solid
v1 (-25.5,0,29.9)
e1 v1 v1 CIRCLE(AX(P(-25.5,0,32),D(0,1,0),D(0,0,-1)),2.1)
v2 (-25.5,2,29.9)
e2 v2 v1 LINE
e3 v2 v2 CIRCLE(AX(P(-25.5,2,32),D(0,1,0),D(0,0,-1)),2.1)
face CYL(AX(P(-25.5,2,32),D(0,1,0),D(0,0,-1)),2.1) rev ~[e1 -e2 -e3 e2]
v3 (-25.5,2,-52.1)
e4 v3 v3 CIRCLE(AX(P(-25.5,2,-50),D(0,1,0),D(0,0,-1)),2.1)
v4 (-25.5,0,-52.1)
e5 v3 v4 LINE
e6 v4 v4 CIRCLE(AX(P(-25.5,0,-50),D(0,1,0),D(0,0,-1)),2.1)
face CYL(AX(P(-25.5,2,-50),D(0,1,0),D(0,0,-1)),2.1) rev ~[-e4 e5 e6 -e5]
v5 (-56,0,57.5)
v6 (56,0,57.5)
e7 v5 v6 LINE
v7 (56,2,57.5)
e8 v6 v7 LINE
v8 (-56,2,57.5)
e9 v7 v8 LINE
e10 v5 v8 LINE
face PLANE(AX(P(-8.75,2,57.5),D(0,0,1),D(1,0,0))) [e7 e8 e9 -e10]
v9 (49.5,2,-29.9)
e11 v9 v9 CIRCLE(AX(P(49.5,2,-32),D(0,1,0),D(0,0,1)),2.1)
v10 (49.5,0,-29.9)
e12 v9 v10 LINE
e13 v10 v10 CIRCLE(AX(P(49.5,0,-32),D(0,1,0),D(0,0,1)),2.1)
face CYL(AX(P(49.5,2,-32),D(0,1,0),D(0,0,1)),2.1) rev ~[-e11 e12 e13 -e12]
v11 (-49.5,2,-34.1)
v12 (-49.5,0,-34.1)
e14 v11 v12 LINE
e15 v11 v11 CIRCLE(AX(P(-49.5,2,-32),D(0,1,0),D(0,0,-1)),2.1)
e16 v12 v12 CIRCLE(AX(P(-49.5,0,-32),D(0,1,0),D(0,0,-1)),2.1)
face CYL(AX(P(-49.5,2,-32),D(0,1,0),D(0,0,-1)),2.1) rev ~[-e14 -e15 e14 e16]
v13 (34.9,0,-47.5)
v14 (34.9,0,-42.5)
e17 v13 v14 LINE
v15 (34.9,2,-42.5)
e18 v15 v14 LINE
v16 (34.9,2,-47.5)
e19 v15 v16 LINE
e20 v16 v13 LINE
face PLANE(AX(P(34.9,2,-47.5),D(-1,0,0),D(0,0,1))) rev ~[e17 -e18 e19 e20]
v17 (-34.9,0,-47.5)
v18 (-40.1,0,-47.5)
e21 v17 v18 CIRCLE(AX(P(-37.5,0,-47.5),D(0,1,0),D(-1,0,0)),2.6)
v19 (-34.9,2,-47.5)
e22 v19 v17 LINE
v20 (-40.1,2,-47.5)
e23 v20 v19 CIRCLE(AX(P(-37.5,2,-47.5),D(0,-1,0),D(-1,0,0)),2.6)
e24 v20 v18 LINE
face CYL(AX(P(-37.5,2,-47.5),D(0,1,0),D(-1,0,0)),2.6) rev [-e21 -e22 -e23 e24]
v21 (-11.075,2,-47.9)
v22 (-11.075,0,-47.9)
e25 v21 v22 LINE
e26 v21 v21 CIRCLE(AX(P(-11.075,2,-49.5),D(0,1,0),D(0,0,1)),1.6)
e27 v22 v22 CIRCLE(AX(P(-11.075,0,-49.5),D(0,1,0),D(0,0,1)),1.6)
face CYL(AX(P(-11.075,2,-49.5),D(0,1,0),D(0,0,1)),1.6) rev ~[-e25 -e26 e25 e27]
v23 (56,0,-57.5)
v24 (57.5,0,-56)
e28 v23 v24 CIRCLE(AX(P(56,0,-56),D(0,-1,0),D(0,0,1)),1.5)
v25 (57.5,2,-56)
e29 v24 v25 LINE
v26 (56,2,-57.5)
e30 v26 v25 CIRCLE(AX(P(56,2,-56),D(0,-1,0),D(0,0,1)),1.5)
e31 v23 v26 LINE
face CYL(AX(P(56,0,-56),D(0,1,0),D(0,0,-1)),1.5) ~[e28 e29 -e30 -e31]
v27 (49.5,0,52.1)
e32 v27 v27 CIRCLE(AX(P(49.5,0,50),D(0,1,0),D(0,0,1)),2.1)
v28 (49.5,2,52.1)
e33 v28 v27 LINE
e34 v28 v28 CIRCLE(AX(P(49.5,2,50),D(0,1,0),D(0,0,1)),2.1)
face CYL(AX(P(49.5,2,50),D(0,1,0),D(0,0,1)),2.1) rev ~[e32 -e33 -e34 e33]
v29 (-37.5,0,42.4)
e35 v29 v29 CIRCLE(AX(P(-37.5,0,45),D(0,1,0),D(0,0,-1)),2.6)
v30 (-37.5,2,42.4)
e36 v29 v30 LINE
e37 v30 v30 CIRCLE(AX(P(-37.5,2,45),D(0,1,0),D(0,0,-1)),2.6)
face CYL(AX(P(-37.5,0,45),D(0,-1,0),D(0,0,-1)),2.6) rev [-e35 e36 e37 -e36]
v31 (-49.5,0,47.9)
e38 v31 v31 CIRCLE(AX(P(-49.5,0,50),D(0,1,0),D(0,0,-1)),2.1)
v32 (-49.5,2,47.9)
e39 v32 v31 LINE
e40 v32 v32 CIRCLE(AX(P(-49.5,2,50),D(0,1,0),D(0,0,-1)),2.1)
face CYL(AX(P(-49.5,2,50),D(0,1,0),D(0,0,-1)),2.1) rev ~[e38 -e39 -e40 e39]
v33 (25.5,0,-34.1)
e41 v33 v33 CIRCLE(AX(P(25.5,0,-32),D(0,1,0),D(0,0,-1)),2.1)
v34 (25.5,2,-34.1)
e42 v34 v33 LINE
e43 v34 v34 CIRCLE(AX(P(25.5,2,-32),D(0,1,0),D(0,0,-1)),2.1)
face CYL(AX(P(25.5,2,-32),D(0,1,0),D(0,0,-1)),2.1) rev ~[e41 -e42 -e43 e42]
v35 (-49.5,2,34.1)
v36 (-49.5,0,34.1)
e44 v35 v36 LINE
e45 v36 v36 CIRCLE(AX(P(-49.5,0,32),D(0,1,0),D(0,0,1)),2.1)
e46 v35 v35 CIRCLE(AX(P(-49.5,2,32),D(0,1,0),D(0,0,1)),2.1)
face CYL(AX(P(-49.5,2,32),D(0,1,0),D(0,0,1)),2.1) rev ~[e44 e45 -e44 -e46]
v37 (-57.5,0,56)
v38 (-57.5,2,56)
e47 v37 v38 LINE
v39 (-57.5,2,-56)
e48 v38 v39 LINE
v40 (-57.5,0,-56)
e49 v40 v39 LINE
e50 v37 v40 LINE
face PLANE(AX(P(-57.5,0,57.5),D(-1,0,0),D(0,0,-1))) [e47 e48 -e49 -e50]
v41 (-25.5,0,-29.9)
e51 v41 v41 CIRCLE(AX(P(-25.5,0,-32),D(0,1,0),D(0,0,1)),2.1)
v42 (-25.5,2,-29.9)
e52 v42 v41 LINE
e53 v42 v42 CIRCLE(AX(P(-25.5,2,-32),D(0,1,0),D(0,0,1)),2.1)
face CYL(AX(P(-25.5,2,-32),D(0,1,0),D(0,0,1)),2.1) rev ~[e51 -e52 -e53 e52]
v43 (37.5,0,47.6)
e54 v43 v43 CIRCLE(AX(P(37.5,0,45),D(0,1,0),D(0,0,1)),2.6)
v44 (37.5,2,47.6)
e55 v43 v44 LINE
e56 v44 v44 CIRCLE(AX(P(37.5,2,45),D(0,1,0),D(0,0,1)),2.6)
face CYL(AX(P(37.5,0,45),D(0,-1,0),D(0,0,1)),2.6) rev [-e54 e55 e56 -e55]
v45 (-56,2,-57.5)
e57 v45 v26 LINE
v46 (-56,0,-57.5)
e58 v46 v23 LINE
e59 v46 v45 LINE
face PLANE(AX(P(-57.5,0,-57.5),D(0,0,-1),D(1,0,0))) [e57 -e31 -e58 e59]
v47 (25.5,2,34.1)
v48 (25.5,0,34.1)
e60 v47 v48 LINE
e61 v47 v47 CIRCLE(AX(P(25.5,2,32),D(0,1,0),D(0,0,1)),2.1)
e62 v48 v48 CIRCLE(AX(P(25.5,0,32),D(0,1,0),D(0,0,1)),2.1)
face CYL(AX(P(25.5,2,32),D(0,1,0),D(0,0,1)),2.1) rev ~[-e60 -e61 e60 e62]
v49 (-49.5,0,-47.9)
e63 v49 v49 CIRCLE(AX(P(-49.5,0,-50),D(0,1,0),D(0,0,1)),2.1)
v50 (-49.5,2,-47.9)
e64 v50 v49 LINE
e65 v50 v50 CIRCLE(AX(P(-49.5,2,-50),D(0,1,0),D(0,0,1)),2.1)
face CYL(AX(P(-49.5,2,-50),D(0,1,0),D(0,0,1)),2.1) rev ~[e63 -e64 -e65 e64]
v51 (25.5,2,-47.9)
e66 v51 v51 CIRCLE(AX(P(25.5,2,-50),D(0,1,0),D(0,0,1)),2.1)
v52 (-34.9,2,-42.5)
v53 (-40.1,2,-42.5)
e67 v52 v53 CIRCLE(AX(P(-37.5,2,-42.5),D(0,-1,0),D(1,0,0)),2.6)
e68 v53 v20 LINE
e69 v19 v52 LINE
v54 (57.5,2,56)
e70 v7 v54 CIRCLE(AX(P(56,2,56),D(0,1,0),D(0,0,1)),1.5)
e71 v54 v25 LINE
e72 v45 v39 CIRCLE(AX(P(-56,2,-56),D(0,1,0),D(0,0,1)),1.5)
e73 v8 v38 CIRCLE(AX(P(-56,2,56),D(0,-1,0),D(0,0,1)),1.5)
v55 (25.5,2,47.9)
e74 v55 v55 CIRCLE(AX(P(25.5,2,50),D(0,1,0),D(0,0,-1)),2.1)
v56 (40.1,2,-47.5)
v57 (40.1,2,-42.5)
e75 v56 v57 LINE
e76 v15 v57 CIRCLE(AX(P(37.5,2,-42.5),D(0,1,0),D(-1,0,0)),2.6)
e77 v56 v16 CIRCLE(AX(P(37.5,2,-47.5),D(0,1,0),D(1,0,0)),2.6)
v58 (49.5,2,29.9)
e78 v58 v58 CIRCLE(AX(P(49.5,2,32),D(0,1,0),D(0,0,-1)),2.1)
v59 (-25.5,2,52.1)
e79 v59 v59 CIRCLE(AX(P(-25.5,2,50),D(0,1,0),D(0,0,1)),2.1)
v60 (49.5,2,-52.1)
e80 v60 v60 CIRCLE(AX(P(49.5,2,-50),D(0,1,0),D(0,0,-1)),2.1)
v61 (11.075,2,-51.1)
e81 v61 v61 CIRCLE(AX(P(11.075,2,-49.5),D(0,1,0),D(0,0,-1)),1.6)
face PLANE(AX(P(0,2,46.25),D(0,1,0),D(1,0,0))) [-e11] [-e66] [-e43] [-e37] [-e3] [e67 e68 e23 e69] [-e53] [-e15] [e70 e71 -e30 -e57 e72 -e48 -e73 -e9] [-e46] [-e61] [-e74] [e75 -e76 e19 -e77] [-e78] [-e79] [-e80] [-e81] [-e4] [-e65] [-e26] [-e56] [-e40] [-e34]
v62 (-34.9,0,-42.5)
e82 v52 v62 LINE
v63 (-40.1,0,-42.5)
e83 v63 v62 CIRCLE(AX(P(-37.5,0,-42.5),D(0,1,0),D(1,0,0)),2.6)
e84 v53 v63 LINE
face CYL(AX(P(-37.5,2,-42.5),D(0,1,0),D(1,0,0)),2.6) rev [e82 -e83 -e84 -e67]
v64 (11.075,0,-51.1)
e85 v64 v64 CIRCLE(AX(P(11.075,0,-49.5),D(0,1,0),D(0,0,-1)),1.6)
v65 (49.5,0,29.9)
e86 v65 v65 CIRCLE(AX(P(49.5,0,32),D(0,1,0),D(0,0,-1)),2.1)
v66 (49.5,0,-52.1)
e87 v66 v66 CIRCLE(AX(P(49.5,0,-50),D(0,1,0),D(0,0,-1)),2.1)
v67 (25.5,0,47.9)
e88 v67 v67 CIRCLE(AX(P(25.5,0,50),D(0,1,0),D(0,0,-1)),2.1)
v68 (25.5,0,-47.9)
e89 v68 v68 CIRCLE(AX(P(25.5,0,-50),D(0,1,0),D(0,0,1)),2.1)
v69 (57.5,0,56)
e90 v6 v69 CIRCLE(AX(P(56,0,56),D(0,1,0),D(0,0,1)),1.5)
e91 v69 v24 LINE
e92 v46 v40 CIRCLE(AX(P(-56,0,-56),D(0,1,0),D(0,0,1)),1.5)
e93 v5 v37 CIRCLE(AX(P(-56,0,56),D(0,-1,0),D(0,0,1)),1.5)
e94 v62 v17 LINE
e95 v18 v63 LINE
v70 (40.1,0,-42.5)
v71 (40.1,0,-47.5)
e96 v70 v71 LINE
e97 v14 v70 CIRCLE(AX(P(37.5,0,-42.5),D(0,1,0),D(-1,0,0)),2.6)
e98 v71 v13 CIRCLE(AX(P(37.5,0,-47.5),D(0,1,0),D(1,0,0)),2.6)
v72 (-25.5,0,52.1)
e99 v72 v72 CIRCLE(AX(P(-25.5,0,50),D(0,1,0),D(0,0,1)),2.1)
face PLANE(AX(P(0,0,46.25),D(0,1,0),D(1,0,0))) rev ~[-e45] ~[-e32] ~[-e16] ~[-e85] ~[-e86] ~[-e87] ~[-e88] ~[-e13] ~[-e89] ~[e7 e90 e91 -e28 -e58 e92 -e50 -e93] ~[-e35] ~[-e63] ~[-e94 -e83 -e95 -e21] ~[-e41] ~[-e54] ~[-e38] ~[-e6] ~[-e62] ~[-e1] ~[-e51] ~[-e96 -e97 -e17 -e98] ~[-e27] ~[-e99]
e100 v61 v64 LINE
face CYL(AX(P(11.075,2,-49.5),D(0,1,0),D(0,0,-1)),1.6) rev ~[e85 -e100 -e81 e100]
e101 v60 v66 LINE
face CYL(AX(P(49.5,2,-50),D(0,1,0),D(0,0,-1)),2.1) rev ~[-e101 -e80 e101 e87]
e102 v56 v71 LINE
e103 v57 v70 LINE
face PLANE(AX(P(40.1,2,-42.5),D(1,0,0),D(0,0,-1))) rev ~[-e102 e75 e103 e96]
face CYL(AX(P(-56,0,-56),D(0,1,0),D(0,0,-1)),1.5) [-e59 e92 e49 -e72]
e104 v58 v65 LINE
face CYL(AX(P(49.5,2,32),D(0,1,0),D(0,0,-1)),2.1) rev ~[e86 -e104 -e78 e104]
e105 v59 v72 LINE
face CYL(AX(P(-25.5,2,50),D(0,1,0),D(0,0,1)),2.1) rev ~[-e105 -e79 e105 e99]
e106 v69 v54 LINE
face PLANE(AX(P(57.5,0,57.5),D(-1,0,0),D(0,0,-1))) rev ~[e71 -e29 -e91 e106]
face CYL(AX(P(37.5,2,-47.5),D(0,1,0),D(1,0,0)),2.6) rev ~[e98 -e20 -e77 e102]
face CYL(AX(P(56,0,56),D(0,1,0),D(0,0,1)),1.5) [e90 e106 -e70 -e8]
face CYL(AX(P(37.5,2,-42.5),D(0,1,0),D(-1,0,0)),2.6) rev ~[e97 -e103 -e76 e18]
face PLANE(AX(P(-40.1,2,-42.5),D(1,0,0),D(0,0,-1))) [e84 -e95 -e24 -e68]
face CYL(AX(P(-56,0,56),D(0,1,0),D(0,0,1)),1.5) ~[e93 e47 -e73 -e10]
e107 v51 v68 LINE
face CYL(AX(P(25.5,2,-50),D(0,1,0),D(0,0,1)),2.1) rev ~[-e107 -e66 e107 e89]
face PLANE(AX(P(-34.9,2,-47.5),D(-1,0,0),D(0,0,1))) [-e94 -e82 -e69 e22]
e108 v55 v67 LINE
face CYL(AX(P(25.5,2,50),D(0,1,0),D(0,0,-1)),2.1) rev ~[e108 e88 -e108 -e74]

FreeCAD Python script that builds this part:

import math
import FreeCAD as App
import Part
import Sketcher
Q = App.Units.Quantity


def edges_at(feature, points):
    """Names of the edges that pass closest to the given points."""
    edges = feature.Shape.Edges
    near = lambda p: min(range(len(edges)), key=lambda i: edges[i].distToShape(Part.Vertex(*p))[0])
    return sorted({f"Edge{near(p) + 1}" for p in points})

doc = App.newDocument("Part")
body = doc.addObject("PartDesign::Body", "Body")

sketch1 = body.newObject("Sketcher::SketchObject", "Sketch")
sketch1.AttachmentSupport = (doc.getObject("XZ_Plane"), [""])
sketch1.MapMode = "FlatFace"
sketch1.addGeometry([
    Part.LineSegment(App.Vector(-57.5, -57.5, 0), App.Vector(-57.5, 57.5, 0)),
    Part.LineSegment(App.Vector(-57.5, 57.5, 0), App.Vector(57.5, 57.5, 0)),
    Part.LineSegment(App.Vector(57.5, 57.5, 0), App.Vector(57.5, -57.5, 0)),
    Part.LineSegment(App.Vector(57.5, -57.5, 0), App.Vector(-57.5, -57.5, 0)),
    Part.Circle(App.Vector(-37.5, 45, 0), App.Vector(0, 0, 1), 2.6),
    Part.Circle(App.Vector(37.5, 45, 0), App.Vector(0, 0, 1), 2.6),
    Part.Circle(App.Vector(-37.5, -45, 0), App.Vector(0, 0, 1), 2.6),
    Part.Circle(App.Vector(37.5, -45, 0), App.Vector(0, 0, 1), 2.6),
], False)
sketch1.addConstraint([
    Sketcher.Constraint("Coincident", 0, 2, 1, 1),
    Sketcher.Constraint("Coincident", 1, 2, 2, 1),
    Sketcher.Constraint("Coincident", 2, 2, 3, 1),
    Sketcher.Constraint("Coincident", 3, 2, 0, 1),
    Sketcher.Constraint("Vertical", 0),
    Sketcher.Constraint("Horizontal", 1),
    Sketcher.Constraint("Vertical", 2),
    Sketcher.Constraint("Horizontal", 3),
    Sketcher.Constraint("Equal", 4, 5),
    Sketcher.Constraint("Equal", 5, 6),
    Sketcher.Constraint("Equal", 6, 7),
    Sketcher.Constraint("Symmetric", 5, 3, 6, 3, -1, 1),
    Sketcher.Constraint("Symmetric", 4, 3, 7, 3, -1, 1),
    Sketcher.Constraint("Symmetric", 0, 2, 2, 2, -1, 1),
    Sketcher.Constraint("Symmetric", 4, 3, 5, 3, -2),
    Sketcher.Constraint("Equal", 3, 0),
    Sketcher.Constraint("Diameter", 4, Q("5.2 mm")),
    Sketcher.Constraint("DistanceX", 1, 1, 1, 2, Q("115 mm")),
    Sketcher.Constraint("DistanceY", -1, 1, 4, 3, Q("45 mm")),
    Sketcher.Constraint("DistanceX", 4, 3, 5, 3, Q("75 mm")),
])
pad1 = body.newObject("PartDesign::Pad", "Pad")
pad1.Profile = sketch1
pad1.Length = 2
pad1.Reversed = True

sketch2 = body.newObject("Sketcher::SketchObject", "Sketch001")
sketch2.AttachmentSupport = (doc.getObject("XZ_Plane"), [""])
sketch2.MapMode = "FlatFace"
sketch2.AttachmentOffset = App.Placement(App.Vector(0, 0, -2), App.Rotation())
sketch2.addGeometry([
    Part.Circle(App.Vector(-49.5, 32, 0), App.Vector(0, 0, 1), 2.1),
    Part.Circle(App.Vector(-25.5, 32, 0), App.Vector(0, 0, 1), 2.1),
    Part.Circle(App.Vector(-25.5, 50, 0), App.Vector(0, 0, 1), 2.1),
    Part.Circle(App.Vector(-49.5, 50, 0), App.Vector(0, 0, 1), 2.1),
    Part.Circle(App.Vector(25.5, 50, 0), App.Vector(0, 0, 1), 2.1),
    Part.Circle(App.Vector(49.5, 50, 0), App.Vector(0, 0, 1), 2.1),
    Part.Circle(App.Vector(49.5, 32, 0), App.Vector(0, 0, 1), 2.1),
    Part.Circle(App.Vector(25.5, 32, 0), App.Vector(0, 0, 1), 2.1),
    Part.Circle(App.Vector(49.5, -50, 0), App.Vector(0, 0, 1), 2.1),
    Part.Circle(App.Vector(49.5, -32, 0), App.Vector(0, 0, 1), 2.1),
    Part.Circle(App.Vector(25.5, -50, 0), App.Vector(0, 0, 1), 2.1),
    Part.Circle(App.Vector(25.5, -32, 0), App.Vector(0, 0, 1), 2.1),
    Part.Circle(App.Vector(-25.5, -50, 0), App.Vector(0, 0, 1), 2.1),
    Part.Circle(App.Vector(-49.5, -50, 0), App.Vector(0, 0, 1), 2.1),
    Part.Circle(App.Vector(-49.5, -32, 0), App.Vector(0, 0, 1), 2.1),
    Part.Circle(App.Vector(-25.5, -32, 0), App.Vector(0, 0, 1), 2.1),
], False)
sketch2.addConstraint([
    Sketcher.Constraint("Equal", 0, 1),
    Sketcher.Constraint("Equal", 1, 2),
    Sketcher.Constraint("Equal", 2, 3),
    Sketcher.Constraint("Equal", 3, 4),
    Sketcher.Constraint("Equal", 4, 5),
    Sketcher.Constraint("Equal", 5, 6),
    Sketcher.Constraint("Equal", 6, 7),
    Sketcher.Constraint("Equal", 7, 8),
    Sketcher.Constraint("Equal", 8, 9),
    Sketcher.Constraint("Equal", 9, 10),
    Sketcher.Constraint("Equal", 10, 11),
    Sketcher.Constraint("Equal", 11, 12),
    Sketcher.Constraint("Equal", 12, 13),
    Sketcher.Constraint("Equal", 13, 14),
    Sketcher.Constraint("Equal", 14, 15),
    Sketcher.Constraint("Symmetric", 3, 3, 8, 3, -1, 1),
    Sketcher.Constraint("Symmetric", 0, 3, 9, 3, -1, 1),
    Sketcher.Constraint("Symmetric", 2, 3, 10, 3, -1, 1),
    Sketcher.Constraint("Symmetric", 1, 3, 11, 3, -1, 1),
    Sketcher.Constraint("Symmetric", 4, 3, 12, 3, -1, 1),
    Sketcher.Constraint("Symmetric", 5, 3, 13, 3, -1, 1),
    Sketcher.Constraint("Symmetric", 6, 3, 14, 3, -1, 1),
    Sketcher.Constraint("Symmetric", 7, 3, 15, 3, -1, 1),
    Sketcher.Constraint("Symmetric", 2, 3, 4, 3, -2),
    Sketcher.Constraint("Symmetric", 3, 3, 5, 3, -2),
    Sketcher.Constraint("Symmetric", 0, 3, 6, 3, -2),
    Sketcher.Constraint("Symmetric", 1, 3, 7, 3, -2),
    Sketcher.Constraint("Horizontal", 0, 3, 1, 3),
    Sketcher.Constraint("Horizontal", 2, 3, 3, 3),
    Sketcher.Constraint("Vertical", 1, 3, 2, 3),
    Sketcher.Constraint("Vertical", 0, 3, 3, 3),
    Sketcher.Constraint("Diameter", 0, Q("4.2 mm")),
    Sketcher.Constraint("DistanceY", -1, 1, 0, 3, Q("32 mm")),
    Sketcher.Constraint("DistanceY", -1, 1, 2, 3, Q("50 mm")),
    Sketcher.Constraint("DistanceX", 0, 3, 1, 3, Q("24 mm")),
    Sketcher.Constraint("DistanceX", 2, 3, 4, 3, Q("51 mm")),
])
pocket1 = body.newObject("PartDesign::Pocket", "Pocket")
pocket1.Profile = sketch2
pocket1.Type = "ThroughAll"
pocket1.Reversed = True

sketch3 = body.newObject("Sketcher::SketchObject", "Sketch002")
sketch3.AttachmentSupport = (doc.getObject("XZ_Plane"), [""])
sketch3.MapMode = "FlatFace"
sketch3.AttachmentOffset = App.Placement(App.Vector(0, 0, -2), App.Rotation())
sketch3.addGeometry([
    Part.LineSegment(App.Vector(-8.75, 35, 0), App.Vector(-8.75, 57.5, 0)),
    Part.LineSegment(App.Vector(-8.75, 57.5, 0), App.Vector(8.75, 57.5, 0)),
    Part.LineSegment(App.Vector(8.75, 57.5, 0), App.Vector(8.75, 35, 0)),
    Part.LineSegment(App.Vector(8.75, 35, 0), App.Vector(-8.75, 35, 0)),
], False)
sketch3.addConstraint([
    Sketcher.Constraint("Coincident", 0, 2, 1, 1),
    Sketcher.Constraint("Coincident", 1, 2, 2, 1),
    Sketcher.Constraint("Coincident", 2, 2, 3, 1),
    Sketcher.Constraint("Coincident", 3, 2, 0, 1),
    Sketcher.Constraint("Vertical", 0),
    Sketcher.Constraint("Horizontal", 1),
    Sketcher.Constraint("Vertical", 2),
    Sketcher.Constraint("Horizontal", 3),
    Sketcher.Constraint("DistanceX", 1, 1, 1, 2, Q("17.5 mm")),
    Sketcher.Constraint("DistanceY", 0, 1, 0, 2, Q("22.5 mm")),
    Sketcher.Constraint("DistanceY", -1, 1, 2, 2, Q("35 mm")),
    Sketcher.Constraint("DistanceX", 0, 2, -1, 1, Q("8.75 mm")),
])
pocket2 = body.newObject("PartDesign::Pocket", "Pocket001")
pocket2.Profile = sketch3
pocket2.Type = "ThroughAll"
pocket2.Reversed = True

sketch4 = body.newObject("Sketcher::SketchObject", "Sketch003")
sketch4.AttachmentSupport = (doc.getObject("XZ_Plane"), [""])
sketch4.MapMode = "FlatFace"
sketch4.AttachmentOffset = App.Placement(App.Vector(0, 0, -2), App.Rotation())
sketch4.addGeometry([
    Part.Circle(App.Vector(-11.075, -49.5, 0), App.Vector(0, 0, 1), 1.6),
    Part.Circle(App.Vector(11.075, -49.5, 0), App.Vector(0, 0, 1), 1.6),
], False)
sketch4.addConstraint([
    Sketcher.Constraint("Equal", 0, 1),
    Sketcher.Constraint("Symmetric", 0, 3, 1, 3, -2),
    Sketcher.Constraint("Diameter", 0, Q("3.2 mm")),
    Sketcher.Constraint("DistanceY", 0, 3, -1, 1, Q("49.5 mm")),
    Sketcher.Constraint("DistanceX", 0, 3, 1, 3, Q("22.15 mm")),
])
pocket3 = body.newObject("PartDesign::Pocket", "Pocket002")
pocket3.Profile = sketch4
pocket3.Type = "ThroughAll"
pocket3.Reversed = True

sketch5 = body.newObject("Sketcher::SketchObject", "Sketch004")
sketch5.AttachmentSupport = (doc.getObject("XZ_Plane"), [""])
sketch5.MapMode = "FlatFace"
sketch5.AttachmentOffset = App.Placement(App.Vector(0, 0, -2), App.Rotation())
sketch5.addGeometry([
    Part.LineSegment(App.Vector(-34.9, -42.5, 0), App.Vector(-34.9, -47.5, 0)),
    Part.ArcOfCircle(Part.Circle(App.Vector(-37.5, -47.5, 0), App.Vector(0, 0, 1), 2.6), math.radians(180), math.radians(360)),
    Part.LineSegment(App.Vector(-40.1, -47.5, 0), App.Vector(-40.1, -42.5, 0)),
    Part.ArcOfCircle(Part.Circle(App.Vector(-37.5, -42.5, 0), App.Vector(0, 0, 1), 2.6), math.radians(0), math.radians(180)),
    Part.LineSegment(App.Vector(34.9, -47.5, 0), App.Vector(34.9, -42.5, 0)),
    Part.ArcOfCircle(Part.Circle(App.Vector(37.5, -42.5, 0), App.Vector(0, 0, 1), 2.6), math.radians(0), math.radians(180)),
    Part.LineSegment(App.Vector(40.1, -42.5, 0), App.Vector(40.1, -47.5, 0)),
    Part.ArcOfCircle(Part.Circle(App.Vector(37.5, -47.5, 0), App.Vector(0, 0, 1), 2.6), math.radians(180), math.radians(360)),
], False)
sketch5.addConstraint([
    Sketcher.Constraint("Tangent", 0, 2, 1, 2),
    Sketcher.Constraint("Tangent", 1, 1, 2, 1),
    Sketcher.Constraint("Tangent", 2, 2, 3, 2),
    Sketcher.Constraint("Tangent", 3, 1, 0, 1),
    Sketcher.Constraint("Tangent", 4, 2, 5, 2),
    Sketcher.Constraint("Tangent", 5, 1, 6, 1),
    Sketcher.Constraint("Tangent", 6, 2, 7, 2),
    Sketcher.Constraint("Tangent", 7, 1, 4, 1),
    Sketcher.Constraint("Vertical", 0),
    Sketcher.Constraint("Vertical", 2),
    Sketcher.Constraint("Vertical", 4),
    Sketcher.Constraint("Vertical", 6),
    Sketcher.Constraint("Equal", 3, 5),
    Sketcher.Constraint("Symmetric", 3, 3, 5, 3, -2),
    Sketcher.Constraint("Horizontal", 1, 3, 7, 3),
    Sketcher.Constraint("Radius", 1, Q("2.6 mm")),
    Sketcher.Constraint("DistanceY", 0, 2, 0, 1, Q("5 mm")),
    Sketcher.Constraint("DistanceX", 3, 3, 5, 3, Q("75 mm")),
    Sketcher.Constraint("DistanceY", 1, 3, -1, 1, Q("47.5 mm")),
])
pocket4 = body.newObject("PartDesign::Pocket", "Pocket003")
pocket4.Profile = sketch5
pocket4.Type = "ThroughAll"
pocket4.Reversed = True

sketch6 = body.newObject("Sketcher::SketchObject", "Sketch005")
sketch6.AttachmentSupport = (doc.getObject("XZ_Plane"), [""])
sketch6.MapMode = "FlatFace"
sketch6.AttachmentOffset = App.Placement(App.Vector(0, 0, -2), App.Rotation())
sketch6.addGeometry([
    Part.LineSegment(App.Vector(-8.75, 35, 0), App.Vector(-8.75, 57.5, 0)),
    Part.LineSegment(App.Vector(-8.75, 57.5, 0), App.Vector(8.75, 57.5, 0)),
    Part.LineSegment(App.Vector(8.75, 57.5, 0), App.Vector(8.75, 35, 0)),
    Part.LineSegment(App.Vector(8.75, 35, 0), App.Vector(-8.75, 35, 0)),
], False)
sketch6.addConstraint([
    Sketcher.Constraint("Coincident", 0, 2, 1, 1),
    Sketcher.Constraint("Coincident", 1, 2, 2, 1),
    Sketcher.Constraint("Coincident", 2, 2, 3, 1),
    Sketcher.Constraint("Coincident", 3, 2, 0, 1),
    Sketcher.Constraint("Vertical", 0),
    Sketcher.Constraint("Horizontal", 1),
    Sketcher.Constraint("Vertical", 2),
    Sketcher.Constraint("Horizontal", 3),
    Sketcher.Constraint("DistanceX", 1, 1, 1, 2, Q("17.5 mm")),
    Sketcher.Constraint("DistanceY", 0, 1, 0, 2, Q("22.5 mm")),
    Sketcher.Constraint("DistanceY", -1, 1, 2, 2, Q("35 mm")),
    Sketcher.Constraint("DistanceX", 0, 2, -1, 1, Q("8.75 mm")),
])
pad2 = body.newObject("PartDesign::Pad", "Pad001")
pad2.Profile = sketch6
pad2.Length = 2
doc.recompute()

fillet = body.newObject("PartDesign::Fillet", "Fillet")
fillet.Base = (pad2, edges_at(pad2, [
    (57.5, 1, 57.5),
    (-57.5, 1, 57.5),
    (-57.5, 1, -57.5),
    (57.5, 1, -57.5),
]))
fillet.Radius = 1.5

doc.recompute()
